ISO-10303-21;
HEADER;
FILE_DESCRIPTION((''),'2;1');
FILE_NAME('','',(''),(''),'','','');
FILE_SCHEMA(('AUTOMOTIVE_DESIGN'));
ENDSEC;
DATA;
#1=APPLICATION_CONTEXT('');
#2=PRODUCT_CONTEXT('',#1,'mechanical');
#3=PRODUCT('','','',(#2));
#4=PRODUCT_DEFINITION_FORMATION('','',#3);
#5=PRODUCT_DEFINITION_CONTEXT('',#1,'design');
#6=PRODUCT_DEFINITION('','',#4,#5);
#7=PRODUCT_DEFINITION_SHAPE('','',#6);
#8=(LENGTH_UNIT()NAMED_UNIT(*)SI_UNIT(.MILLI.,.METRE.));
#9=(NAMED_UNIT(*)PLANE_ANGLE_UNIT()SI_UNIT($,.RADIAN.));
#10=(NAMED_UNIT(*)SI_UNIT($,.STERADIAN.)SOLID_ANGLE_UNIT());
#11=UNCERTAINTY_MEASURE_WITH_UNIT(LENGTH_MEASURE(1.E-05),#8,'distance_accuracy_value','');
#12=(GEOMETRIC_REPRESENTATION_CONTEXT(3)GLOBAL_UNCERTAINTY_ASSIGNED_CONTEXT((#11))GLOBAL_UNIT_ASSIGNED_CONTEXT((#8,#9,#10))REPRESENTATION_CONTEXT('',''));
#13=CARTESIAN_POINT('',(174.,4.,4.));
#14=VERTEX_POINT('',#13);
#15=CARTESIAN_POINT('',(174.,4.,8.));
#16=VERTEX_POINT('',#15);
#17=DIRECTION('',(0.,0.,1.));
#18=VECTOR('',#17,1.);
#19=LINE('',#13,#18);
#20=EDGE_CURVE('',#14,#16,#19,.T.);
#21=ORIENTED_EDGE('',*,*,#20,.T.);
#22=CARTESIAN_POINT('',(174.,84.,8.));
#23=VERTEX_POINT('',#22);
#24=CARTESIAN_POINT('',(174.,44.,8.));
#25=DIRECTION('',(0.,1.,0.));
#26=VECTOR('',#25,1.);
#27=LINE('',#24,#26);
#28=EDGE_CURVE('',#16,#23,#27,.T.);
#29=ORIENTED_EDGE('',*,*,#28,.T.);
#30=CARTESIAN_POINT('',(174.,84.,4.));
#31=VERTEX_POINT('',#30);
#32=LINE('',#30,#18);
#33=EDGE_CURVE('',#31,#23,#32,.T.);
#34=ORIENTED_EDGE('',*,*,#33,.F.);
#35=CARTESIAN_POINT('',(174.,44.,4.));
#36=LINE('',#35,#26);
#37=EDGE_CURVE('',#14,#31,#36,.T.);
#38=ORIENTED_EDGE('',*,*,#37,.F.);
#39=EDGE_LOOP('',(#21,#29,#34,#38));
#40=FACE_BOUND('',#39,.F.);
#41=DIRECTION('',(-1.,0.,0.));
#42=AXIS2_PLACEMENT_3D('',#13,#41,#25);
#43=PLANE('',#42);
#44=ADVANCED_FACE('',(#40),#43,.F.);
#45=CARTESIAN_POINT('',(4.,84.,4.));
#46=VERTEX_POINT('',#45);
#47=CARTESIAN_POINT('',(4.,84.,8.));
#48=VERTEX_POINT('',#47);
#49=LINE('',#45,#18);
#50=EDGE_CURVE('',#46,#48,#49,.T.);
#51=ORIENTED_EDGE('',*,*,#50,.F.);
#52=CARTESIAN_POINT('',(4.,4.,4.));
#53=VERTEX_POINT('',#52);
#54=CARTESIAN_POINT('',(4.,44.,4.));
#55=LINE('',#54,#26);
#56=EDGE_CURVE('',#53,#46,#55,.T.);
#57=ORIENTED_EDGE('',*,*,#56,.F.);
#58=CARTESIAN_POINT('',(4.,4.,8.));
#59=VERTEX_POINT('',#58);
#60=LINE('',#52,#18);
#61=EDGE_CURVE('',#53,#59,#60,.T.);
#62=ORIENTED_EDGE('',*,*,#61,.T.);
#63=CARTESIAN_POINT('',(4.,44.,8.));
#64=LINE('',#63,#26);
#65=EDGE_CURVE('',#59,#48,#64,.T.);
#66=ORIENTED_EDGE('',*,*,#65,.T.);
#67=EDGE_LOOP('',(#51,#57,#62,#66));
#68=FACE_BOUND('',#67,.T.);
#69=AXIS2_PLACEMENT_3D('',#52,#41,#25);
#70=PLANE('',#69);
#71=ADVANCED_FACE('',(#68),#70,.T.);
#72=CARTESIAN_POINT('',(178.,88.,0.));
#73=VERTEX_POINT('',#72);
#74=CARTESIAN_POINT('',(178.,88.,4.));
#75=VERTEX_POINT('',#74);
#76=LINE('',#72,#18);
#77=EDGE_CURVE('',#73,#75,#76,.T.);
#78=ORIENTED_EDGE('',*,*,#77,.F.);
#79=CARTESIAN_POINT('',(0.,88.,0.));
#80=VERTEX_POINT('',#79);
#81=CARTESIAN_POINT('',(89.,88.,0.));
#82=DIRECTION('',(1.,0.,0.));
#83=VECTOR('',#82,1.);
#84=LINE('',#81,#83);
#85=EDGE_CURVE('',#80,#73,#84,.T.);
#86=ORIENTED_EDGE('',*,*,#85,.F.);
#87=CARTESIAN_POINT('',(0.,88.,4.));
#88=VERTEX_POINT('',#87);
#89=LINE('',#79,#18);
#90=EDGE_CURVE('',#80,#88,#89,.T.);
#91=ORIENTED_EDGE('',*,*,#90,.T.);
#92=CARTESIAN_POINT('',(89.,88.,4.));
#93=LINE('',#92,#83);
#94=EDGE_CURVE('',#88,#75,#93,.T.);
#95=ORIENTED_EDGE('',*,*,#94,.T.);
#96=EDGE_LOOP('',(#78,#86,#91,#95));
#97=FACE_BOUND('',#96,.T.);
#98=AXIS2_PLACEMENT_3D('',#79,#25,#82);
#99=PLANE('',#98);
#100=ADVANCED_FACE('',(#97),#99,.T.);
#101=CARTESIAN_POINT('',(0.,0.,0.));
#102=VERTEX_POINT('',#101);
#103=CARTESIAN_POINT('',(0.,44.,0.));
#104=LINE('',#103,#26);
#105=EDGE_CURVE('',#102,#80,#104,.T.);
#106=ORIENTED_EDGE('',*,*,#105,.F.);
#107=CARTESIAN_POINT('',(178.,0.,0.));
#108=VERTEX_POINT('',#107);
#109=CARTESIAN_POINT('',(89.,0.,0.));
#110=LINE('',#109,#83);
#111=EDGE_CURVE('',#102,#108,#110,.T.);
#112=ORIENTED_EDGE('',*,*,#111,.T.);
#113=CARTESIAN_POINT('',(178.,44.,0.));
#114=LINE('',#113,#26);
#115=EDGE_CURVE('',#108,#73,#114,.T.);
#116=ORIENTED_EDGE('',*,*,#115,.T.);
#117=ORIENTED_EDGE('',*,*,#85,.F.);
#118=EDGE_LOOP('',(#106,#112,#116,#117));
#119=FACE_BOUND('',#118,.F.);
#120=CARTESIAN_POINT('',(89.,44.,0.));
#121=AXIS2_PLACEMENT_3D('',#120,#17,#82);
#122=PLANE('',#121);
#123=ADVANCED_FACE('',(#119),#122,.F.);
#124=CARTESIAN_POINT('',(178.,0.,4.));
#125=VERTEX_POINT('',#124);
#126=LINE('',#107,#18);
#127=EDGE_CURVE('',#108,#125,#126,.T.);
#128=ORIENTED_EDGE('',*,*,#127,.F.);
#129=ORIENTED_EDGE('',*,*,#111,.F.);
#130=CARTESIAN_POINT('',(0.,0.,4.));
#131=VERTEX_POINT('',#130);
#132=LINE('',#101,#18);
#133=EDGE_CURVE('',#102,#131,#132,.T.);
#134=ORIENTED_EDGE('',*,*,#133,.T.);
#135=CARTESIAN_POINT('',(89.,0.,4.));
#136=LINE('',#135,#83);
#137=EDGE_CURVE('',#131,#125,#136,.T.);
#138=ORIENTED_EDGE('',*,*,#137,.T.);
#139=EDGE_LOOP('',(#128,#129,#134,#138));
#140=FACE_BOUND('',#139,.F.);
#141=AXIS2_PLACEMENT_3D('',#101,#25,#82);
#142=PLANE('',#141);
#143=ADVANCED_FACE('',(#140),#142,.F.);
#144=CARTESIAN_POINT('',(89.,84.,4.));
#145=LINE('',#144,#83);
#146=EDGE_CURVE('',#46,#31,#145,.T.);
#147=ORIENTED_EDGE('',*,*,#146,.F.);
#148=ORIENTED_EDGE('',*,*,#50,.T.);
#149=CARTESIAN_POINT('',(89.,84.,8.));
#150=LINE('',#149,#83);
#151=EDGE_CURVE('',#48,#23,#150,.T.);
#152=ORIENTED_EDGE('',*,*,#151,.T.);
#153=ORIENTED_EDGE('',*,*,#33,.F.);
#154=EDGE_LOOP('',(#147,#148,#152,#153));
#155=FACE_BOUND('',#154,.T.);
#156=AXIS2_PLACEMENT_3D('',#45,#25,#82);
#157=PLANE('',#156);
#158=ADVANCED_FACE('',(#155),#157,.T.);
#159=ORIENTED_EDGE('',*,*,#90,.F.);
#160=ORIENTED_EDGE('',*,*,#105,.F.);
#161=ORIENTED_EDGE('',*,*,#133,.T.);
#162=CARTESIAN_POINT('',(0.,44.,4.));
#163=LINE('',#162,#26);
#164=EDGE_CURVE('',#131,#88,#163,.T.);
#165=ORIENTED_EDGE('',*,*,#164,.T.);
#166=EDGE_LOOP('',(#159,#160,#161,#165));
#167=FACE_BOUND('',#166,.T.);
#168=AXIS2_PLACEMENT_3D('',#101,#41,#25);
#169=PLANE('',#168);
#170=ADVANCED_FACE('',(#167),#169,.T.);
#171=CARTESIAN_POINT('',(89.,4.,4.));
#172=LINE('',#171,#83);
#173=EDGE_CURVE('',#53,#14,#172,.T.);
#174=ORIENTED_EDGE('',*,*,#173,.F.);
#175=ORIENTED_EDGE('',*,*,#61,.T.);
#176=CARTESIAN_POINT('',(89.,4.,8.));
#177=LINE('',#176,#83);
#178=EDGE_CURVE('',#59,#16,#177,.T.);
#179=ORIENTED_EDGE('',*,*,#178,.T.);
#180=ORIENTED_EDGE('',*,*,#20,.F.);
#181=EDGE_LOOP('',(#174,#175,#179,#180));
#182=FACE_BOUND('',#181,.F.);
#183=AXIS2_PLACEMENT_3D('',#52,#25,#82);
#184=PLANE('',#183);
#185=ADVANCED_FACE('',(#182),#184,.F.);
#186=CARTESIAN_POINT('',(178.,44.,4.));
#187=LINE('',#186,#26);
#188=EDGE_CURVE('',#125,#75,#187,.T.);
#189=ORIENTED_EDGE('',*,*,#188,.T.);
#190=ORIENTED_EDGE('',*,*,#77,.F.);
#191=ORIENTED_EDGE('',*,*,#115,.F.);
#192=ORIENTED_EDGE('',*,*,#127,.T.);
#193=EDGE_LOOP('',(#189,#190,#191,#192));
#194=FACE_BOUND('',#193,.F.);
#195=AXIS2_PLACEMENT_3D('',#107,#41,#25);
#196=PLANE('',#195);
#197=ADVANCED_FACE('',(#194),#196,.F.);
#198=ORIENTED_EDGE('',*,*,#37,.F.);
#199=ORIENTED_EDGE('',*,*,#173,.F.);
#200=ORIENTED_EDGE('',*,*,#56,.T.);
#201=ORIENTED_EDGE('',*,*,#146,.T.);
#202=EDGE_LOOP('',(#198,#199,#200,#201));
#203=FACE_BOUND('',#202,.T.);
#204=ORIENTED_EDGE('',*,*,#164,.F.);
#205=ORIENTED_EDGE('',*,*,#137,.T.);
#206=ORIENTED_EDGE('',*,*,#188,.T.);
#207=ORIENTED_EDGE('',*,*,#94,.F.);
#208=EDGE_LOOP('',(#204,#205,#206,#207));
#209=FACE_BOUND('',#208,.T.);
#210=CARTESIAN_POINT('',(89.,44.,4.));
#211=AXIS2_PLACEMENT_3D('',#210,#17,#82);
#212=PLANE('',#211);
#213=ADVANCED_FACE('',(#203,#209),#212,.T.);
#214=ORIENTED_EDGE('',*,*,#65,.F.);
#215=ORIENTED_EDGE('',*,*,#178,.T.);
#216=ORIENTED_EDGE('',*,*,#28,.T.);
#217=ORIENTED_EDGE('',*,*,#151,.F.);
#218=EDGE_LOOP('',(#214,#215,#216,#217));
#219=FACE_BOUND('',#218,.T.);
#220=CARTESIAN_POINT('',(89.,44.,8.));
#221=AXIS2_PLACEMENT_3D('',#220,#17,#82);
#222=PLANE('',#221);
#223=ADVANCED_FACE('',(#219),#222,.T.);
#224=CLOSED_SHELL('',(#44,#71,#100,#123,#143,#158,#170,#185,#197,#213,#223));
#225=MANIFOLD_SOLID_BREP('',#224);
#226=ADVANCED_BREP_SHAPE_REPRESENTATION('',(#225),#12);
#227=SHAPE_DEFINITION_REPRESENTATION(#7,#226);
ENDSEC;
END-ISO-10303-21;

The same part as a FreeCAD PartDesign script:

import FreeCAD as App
import Part
import Sketcher
Q = App.Units.Quantity

doc = App.newDocument("Part")
body = doc.addObject("PartDesign::Body", "Body")

# Sketch on XY plane
sketch1 = body.newObject("Sketcher::SketchObject", "Sketch")
sketch1.AttachmentSupport = (doc.getObject("XY_Plane"), [""])
sketch1.MapMode = "FlatFace"
sketch1.addGeometry(Part.LineSegment(App.Vector(0, 88, 0), App.Vector(0, 0, 0)), False)
sketch1.addGeometry(Part.LineSegment(App.Vector(0, 0, 0), App.Vector(178, 0, 0)), False)
sketch1.addGeometry(Part.LineSegment(App.Vector(178, 0, 0), App.Vector(178, 88, 0)), False)
sketch1.addGeometry(Part.LineSegment(App.Vector(178, 88, 0), App.Vector(0, 88, 0)), False)
sketch1.addConstraint(Sketcher.Constraint("Coincident", 0, 2, 1, 1))
sketch1.addConstraint(Sketcher.Constraint("Coincident", 1, 2, 2, 1))
sketch1.addConstraint(Sketcher.Constraint("Coincident", 2, 2, 3, 1))
sketch1.addConstraint(Sketcher.Constraint("Coincident", 3, 2, 0, 1))
sketch1.addConstraint(Sketcher.Constraint("Vertical", 0))
sketch1.addConstraint(Sketcher.Constraint("Horizontal", 1))
sketch1.addConstraint(Sketcher.Constraint("Vertical", 2))
sketch1.addConstraint(Sketcher.Constraint("Horizontal", 3))
sketch1.addConstraint(Sketcher.Constraint("Coincident", 0, 2, -1, 1))
sketch1.addConstraint(Sketcher.Constraint("DistanceX", 1, 1, 1, 2, Q("178 mm")))
sketch1.addConstraint(Sketcher.Constraint("DistanceY", 0, 2, 0, 1, Q("88 mm")))
pad1 = body.newObject("PartDesign::Pad", "Pad")
pad1.Profile = sketch1
pad1.Length = 4

# Sketch on XY plane
sketch2 = body.newObject("Sketcher::SketchObject", "Sketch001")
sketch2.AttachmentSupport = (doc.getObject("XY_Plane"), [""])
sketch2.MapMode = "FlatFace"
sketch2.AttachmentOffset = App.Placement(App.Vector(0, 0, 4), App.Rotation())
sketch2.addGeometry(Part.LineSegment(App.Vector(4, 84, 0), App.Vector(4, 4, 0)), False)
sketch2.addGeometry(Part.LineSegment(App.Vector(4, 4, 0), App.Vector(174, 4, 0)), False)
sketch2.addGeometry(Part.LineSegment(App.Vector(174, 4, 0), App.Vector(174, 84, 0)), False)
sketch2.addGeometry(Part.LineSegment(App.Vector(174, 84, 0), App.Vector(4, 84, 0)), False)
sketch2.addConstraint(Sketcher.Constraint("Coincident", 0, 2, 1, 1))
sketch2.addConstraint(Sketcher.Constraint("Coincident", 1, 2, 2, 1))
sketch2.addConstraint(Sketcher.Constraint("Coincident", 2, 2, 3, 1))
sketch2.addConstraint(Sketcher.Constraint("Coincident", 3, 2, 0, 1))
sketch2.addConstraint(Sketcher.Constraint("Vertical", 0))
sketch2.addConstraint(Sketcher.Constraint("Horizontal", 1))
sketch2.addConstraint(Sketcher.Constraint("Vertical", 2))
sketch2.addConstraint(Sketcher.Constraint("Horizontal", 3))
sketch2.addConstraint(Sketcher.Constraint("DistanceX", 1, 1, 1, 2, Q("170 mm")))
sketch2.addConstraint(Sketcher.Constraint("DistanceY", 0, 2, 0, 1, Q("80 mm")))
sketch2.addConstraint(Sketcher.Constraint("DistanceX", -1, 1, 0, 2, Q("4 mm")))
sketch2.addConstraint(Sketcher.Constraint("DistanceY", -1, 1, 0, 2, Q("4 mm")))
pad2 = body.newObject("PartDesign::Pad", "Pad001")
pad2.Profile = sketch2
pad2.Length = 4

doc.recompute()
